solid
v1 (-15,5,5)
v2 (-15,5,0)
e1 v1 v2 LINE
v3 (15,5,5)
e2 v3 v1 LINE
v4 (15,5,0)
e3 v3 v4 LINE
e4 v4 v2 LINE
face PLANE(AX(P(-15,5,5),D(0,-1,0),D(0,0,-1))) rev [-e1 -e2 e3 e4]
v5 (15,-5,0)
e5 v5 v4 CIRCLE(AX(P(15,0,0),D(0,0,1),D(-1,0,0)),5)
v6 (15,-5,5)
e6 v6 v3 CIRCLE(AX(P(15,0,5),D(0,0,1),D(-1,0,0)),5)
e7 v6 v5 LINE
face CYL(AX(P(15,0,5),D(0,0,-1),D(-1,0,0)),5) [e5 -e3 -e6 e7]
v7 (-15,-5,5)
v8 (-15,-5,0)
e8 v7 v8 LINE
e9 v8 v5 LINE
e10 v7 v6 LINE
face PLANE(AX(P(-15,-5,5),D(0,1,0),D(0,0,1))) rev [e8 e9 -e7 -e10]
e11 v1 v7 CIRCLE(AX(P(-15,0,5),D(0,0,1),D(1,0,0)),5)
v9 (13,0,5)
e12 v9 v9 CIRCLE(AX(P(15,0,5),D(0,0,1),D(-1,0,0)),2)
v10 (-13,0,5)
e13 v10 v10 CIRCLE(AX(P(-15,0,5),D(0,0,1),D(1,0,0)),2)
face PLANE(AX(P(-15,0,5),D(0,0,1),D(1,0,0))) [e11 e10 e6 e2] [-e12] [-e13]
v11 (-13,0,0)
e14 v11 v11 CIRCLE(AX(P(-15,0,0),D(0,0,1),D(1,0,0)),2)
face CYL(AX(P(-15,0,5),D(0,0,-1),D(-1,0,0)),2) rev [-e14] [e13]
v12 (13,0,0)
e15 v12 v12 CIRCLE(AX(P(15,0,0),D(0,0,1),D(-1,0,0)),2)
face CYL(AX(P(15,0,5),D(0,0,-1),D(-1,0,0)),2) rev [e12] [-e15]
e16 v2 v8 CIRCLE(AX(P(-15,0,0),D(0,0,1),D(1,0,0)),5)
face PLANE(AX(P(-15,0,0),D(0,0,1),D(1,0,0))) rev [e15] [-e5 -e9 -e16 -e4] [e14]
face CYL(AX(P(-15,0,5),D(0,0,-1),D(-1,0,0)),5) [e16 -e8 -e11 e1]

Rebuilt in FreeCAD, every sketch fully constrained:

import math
import FreeCAD as App
import Part
import Sketcher
Q = App.Units.Quantity

doc = App.newDocument("Part")
body = doc.addObject("PartDesign::Body", "Body")

# Sketch on XY plane
sketch1 = body.newObject("Sketcher::SketchObject", "Sketch")
sketch1.AttachmentSupport = (doc.getObject("XY_Plane"), [""])
sketch1.MapMode = "FlatFace"
sketch1.addGeometry([
    Part.LineSegment(App.Vector(15, 5, 0), App.Vector(-15, 5, 0)),  # 0
    Part.ArcOfCircle(Part.Circle(App.Vector(-15, 0, 0), App.Vector(0, 0, 1), 5), math.radians(90), math.radians(270)),  # 1
    Part.LineSegment(App.Vector(-15, -5, 0), App.Vector(15, -5, 0)),  # 2
    Part.ArcOfCircle(Part.Circle(App.Vector(15, 0, 0), App.Vector(0, 0, 1), 5), math.radians(-90), math.radians(90)),  # 3
    Part.Circle(App.Vector(15, 0, 0), App.Vector(0, 0, 1), 2),  # 4
    Part.Circle(App.Vector(-15, 0, 0), App.Vector(0, 0, 1), 2),  # 5
], False)
sketch1.addConstraint([
    Sketcher.Constraint("Tangent", 0, 2, 1, 1),
    Sketcher.Constraint("Tangent", 1, 2, 2, 1),
    Sketcher.Constraint("Tangent", 2, 2, 3, 1),
    Sketcher.Constraint("Tangent", 3, 2, 0, 1),
    Sketcher.Constraint("Horizontal", 0),
    Sketcher.Constraint("Horizontal", 2),
    Sketcher.Constraint("Coincident", 4, 3, 3, 3),
    Sketcher.Constraint("Coincident", 5, 3, 1, 3),
    Sketcher.Constraint("Equal", 4, 5),
    Sketcher.Constraint("Symmetric", 1, 3, 3, 3, -1, 1),
    Sketcher.Constraint("Diameter", 4, Q("4 mm")),
    Sketcher.Constraint("Radius", 1, Q("5 mm")),
    Sketcher.Constraint("DistanceX", 0, 2, 0, 1, Q("30 mm")),
])
pad1 = body.newObject("PartDesign::Pad", "Pad")
pad1.Profile = sketch1
pad1.Length = 5

doc.recompute()
